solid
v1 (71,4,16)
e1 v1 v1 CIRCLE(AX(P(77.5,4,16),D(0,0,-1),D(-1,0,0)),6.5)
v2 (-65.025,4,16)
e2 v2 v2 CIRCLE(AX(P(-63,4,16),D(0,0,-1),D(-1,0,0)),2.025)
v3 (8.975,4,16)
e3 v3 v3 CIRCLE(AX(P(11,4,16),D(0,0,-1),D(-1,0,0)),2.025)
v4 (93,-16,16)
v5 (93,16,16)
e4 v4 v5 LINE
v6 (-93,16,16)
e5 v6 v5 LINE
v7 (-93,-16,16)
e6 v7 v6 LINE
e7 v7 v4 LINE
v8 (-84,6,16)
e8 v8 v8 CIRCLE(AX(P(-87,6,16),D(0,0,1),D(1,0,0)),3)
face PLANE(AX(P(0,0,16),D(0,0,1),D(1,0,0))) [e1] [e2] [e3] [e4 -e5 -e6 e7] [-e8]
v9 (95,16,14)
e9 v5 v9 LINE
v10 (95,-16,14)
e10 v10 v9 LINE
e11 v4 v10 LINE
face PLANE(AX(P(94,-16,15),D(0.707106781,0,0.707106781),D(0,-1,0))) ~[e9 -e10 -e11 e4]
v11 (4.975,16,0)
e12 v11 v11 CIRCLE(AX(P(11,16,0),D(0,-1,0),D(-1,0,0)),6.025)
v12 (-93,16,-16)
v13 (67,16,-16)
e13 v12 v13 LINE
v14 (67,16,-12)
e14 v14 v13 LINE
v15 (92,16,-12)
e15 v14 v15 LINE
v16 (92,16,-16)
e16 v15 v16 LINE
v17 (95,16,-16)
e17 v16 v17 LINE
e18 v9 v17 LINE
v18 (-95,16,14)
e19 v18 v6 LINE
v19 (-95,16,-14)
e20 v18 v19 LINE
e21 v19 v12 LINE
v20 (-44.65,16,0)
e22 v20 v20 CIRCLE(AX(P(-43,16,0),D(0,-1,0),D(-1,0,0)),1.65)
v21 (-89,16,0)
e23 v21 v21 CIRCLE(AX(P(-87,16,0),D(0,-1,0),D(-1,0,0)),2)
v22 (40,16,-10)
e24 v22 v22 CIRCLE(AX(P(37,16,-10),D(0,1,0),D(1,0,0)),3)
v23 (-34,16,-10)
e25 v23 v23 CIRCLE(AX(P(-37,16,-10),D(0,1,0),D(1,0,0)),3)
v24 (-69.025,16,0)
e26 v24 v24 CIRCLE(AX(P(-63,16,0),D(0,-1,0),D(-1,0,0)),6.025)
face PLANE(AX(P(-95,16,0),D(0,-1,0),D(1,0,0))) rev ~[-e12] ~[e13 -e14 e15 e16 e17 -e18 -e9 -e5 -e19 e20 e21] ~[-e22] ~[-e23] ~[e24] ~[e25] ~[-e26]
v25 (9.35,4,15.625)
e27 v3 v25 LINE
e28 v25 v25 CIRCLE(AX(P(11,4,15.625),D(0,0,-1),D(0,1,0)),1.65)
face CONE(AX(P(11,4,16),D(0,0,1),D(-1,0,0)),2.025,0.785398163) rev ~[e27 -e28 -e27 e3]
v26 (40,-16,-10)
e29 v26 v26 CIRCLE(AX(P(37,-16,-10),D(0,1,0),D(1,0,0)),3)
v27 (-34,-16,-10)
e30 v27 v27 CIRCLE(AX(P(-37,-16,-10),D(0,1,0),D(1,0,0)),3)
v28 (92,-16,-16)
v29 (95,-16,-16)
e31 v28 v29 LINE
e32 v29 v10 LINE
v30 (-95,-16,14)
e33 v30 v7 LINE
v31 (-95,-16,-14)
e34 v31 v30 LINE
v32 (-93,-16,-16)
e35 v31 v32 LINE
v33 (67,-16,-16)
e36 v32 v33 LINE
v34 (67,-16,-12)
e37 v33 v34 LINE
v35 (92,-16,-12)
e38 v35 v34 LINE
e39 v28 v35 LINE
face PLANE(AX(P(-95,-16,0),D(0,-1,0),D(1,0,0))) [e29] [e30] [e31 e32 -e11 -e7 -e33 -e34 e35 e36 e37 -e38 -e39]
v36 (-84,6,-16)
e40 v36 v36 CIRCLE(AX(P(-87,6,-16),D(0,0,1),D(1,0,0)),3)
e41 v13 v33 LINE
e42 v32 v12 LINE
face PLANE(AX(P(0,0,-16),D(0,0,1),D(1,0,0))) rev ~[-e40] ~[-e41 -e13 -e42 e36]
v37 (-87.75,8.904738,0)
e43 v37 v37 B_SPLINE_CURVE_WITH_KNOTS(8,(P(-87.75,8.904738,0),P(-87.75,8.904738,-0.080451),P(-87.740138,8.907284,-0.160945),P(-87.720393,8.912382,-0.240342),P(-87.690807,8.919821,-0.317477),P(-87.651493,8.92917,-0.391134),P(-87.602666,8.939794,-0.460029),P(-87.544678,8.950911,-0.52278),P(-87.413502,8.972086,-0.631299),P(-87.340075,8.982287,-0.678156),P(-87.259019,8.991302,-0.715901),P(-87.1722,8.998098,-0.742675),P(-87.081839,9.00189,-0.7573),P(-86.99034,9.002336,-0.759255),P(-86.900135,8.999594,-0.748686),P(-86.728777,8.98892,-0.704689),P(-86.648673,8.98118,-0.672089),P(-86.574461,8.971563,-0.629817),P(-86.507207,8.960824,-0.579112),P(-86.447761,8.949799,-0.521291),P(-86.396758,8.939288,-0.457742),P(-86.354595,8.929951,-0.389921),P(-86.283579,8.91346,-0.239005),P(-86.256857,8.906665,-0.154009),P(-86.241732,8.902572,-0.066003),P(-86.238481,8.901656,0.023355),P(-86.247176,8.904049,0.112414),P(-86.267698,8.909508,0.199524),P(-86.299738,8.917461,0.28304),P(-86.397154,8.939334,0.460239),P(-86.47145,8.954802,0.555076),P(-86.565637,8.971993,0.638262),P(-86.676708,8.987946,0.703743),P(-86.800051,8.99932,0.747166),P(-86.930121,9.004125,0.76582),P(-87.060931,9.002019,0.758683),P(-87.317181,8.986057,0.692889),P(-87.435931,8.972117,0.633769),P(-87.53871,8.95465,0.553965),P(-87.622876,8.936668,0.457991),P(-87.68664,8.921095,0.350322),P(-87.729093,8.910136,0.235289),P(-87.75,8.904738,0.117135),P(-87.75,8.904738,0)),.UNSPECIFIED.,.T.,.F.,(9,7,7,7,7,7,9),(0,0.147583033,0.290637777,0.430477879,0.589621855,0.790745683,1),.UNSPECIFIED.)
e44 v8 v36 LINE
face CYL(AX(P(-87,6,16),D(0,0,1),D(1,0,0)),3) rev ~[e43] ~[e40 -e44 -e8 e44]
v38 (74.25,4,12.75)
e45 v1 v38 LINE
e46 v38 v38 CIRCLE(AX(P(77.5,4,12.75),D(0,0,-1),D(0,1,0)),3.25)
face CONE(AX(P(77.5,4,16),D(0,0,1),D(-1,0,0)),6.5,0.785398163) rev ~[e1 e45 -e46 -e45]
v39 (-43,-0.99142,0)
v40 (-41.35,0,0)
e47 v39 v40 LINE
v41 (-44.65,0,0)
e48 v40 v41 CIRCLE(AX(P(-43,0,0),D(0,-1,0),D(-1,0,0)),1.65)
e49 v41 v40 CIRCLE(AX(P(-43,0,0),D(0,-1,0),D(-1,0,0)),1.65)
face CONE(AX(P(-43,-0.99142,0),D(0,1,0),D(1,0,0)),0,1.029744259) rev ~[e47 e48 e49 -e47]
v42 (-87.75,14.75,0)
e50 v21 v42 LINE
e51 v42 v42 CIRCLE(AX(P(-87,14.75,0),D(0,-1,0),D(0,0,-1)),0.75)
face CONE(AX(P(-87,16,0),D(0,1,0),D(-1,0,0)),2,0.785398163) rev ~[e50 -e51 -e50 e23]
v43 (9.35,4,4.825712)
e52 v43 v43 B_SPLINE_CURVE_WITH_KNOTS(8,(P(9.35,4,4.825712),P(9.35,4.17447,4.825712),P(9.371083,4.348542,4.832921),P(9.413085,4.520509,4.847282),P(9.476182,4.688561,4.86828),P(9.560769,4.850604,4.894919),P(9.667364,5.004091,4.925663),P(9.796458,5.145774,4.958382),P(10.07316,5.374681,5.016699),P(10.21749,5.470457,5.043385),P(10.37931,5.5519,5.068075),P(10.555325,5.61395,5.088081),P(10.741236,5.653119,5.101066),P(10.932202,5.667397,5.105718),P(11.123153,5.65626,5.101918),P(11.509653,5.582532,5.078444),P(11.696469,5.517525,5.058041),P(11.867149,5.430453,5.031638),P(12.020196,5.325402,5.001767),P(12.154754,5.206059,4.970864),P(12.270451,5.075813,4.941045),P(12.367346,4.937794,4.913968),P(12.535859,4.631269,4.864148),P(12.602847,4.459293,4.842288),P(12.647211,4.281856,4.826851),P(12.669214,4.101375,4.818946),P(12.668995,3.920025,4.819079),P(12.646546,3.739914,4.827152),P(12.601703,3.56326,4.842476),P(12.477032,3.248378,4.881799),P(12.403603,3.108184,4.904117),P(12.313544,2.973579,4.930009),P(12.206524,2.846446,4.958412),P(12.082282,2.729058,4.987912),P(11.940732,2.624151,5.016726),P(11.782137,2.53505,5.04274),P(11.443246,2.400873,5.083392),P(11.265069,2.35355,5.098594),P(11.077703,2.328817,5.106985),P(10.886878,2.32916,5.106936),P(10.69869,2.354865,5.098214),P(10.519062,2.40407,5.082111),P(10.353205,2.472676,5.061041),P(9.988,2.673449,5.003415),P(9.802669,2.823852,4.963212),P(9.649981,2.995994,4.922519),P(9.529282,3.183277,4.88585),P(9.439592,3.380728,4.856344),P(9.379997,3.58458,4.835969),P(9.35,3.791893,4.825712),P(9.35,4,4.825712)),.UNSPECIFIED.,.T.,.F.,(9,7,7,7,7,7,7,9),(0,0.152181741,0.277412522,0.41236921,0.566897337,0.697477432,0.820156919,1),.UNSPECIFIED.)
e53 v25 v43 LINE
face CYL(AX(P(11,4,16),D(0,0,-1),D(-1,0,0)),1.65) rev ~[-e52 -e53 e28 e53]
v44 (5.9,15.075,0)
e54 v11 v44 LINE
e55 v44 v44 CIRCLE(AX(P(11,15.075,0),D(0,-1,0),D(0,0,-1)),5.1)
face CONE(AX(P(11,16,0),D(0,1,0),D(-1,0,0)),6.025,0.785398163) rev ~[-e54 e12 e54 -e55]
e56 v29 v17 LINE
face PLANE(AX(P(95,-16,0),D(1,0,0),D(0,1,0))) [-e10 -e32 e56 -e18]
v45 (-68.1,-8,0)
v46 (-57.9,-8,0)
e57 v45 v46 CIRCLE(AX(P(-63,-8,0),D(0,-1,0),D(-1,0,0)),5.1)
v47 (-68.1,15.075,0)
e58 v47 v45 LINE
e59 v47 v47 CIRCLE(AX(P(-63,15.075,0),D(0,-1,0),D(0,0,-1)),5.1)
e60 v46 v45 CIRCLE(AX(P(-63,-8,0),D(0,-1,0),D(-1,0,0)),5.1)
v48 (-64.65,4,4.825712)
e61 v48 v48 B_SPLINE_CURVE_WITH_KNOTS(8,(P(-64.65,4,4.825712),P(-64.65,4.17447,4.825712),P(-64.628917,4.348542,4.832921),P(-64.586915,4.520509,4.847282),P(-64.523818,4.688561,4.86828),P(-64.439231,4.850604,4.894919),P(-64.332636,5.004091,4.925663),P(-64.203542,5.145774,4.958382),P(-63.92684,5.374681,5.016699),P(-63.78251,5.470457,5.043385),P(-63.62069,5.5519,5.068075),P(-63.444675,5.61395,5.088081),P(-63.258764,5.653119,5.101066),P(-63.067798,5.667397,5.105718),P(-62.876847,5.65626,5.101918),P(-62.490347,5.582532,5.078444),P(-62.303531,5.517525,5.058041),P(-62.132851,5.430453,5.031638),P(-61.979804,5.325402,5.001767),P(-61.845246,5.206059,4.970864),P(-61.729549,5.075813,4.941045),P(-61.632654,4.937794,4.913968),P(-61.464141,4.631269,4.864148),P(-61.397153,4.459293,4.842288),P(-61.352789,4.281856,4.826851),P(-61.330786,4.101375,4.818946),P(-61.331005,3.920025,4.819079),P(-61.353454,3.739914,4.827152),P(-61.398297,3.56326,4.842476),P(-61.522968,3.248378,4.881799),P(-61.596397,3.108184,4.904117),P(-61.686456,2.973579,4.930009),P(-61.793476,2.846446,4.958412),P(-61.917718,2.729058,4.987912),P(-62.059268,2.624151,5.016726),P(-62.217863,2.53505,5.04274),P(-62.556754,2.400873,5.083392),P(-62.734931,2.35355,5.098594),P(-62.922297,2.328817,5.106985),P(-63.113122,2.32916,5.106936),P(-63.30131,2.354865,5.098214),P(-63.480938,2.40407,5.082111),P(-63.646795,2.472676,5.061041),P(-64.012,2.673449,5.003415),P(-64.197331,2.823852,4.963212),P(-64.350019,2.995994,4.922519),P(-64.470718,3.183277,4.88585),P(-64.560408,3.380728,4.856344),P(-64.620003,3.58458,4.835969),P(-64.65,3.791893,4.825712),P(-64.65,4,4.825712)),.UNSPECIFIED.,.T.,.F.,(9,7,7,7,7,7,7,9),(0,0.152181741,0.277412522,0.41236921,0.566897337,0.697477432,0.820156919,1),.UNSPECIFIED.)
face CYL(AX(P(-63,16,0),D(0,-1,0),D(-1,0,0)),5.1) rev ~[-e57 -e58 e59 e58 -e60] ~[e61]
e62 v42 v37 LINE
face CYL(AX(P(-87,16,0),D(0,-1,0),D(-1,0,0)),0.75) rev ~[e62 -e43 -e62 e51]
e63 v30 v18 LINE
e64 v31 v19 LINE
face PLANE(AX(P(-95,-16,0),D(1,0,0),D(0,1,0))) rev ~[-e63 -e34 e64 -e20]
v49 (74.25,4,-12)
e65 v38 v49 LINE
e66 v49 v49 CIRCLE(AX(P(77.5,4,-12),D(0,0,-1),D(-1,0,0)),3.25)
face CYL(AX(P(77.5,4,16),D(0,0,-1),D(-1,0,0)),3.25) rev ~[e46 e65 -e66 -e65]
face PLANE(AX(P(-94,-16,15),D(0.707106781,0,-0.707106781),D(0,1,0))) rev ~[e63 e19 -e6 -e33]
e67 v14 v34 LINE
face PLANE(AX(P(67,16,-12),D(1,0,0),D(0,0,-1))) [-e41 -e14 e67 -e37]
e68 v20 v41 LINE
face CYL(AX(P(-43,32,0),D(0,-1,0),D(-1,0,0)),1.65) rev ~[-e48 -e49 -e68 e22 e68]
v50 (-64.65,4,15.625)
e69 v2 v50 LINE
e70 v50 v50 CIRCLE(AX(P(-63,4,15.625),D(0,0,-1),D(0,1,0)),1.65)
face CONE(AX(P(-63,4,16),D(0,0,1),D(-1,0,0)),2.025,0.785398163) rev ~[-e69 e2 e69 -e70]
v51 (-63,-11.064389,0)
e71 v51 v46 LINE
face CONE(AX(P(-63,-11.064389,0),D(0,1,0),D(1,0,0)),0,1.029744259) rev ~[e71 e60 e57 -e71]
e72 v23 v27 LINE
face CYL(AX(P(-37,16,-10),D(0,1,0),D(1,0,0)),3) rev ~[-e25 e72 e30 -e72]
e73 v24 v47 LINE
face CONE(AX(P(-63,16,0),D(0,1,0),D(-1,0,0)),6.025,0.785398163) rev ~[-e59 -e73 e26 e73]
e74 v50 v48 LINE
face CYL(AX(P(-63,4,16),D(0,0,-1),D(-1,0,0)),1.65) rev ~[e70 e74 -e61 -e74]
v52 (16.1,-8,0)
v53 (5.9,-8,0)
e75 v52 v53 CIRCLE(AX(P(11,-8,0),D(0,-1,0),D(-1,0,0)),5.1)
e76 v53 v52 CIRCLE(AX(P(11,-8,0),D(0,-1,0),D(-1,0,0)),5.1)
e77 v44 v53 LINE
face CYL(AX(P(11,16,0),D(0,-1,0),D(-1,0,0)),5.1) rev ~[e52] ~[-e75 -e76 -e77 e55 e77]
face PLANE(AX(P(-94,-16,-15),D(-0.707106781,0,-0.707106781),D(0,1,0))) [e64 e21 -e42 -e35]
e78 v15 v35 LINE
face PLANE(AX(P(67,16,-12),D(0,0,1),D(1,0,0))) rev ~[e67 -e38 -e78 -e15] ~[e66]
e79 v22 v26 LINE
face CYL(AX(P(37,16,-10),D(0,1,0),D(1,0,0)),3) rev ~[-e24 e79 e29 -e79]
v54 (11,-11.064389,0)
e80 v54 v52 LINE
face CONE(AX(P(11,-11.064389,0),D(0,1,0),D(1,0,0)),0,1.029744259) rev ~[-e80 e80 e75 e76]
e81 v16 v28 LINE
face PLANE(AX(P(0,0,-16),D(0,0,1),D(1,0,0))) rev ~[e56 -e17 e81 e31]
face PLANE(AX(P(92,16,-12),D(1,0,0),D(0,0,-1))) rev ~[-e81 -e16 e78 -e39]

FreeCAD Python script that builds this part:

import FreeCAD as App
import Part
import Sketcher

V = App.Vector


def edges_at(feature, points):
    """Names of the edges that pass closest to the given points."""
    edges = feature.Shape.Edges
    near = lambda p: min(range(len(edges)), key=lambda i: edges[i].distToShape(Part.Vertex(*p))[0])
    return sorted({f"Edge{near(p) + 1}" for p in points})


def add_polygon(sketch, points):
    """Adds a closed chain of lines whose ends are joined by coincident constraints."""
    first, n = sketch.GeometryCount, len(points)
    for a, b in zip(points, points[1:] + points[:1]):
        sketch.addGeometry(Part.LineSegment(App.Vector(*a, 0), App.Vector(*b, 0)), False)
    for i in range(n):
        sketch.addConstraint(Sketcher.Constraint("Coincident", first + i, 2, first + (i + 1) % n, 1))

doc = App.newDocument("Part")
params = doc.addObject("Spreadsheet::Sheet", "Params")
for row, (alias, value) in enumerate([
    ("sketch1_width", "190 mm"),
    ("sketch1_height", "32 mm"),
    ("pad1_length", "32 mm"),
    ("chamfer_size", "2 mm"),
    ("sketch2_width", "25 mm"),
    ("sketch2_height", "4 mm"),
    ("sketch3_diameter", "10.2 mm"),
    ("hole_diameter", "10.2 mm"),
    ("hole_depth", "24 mm"),
    ("hole_csink_diameter", "12.05 mm"),
    ("sketch4_diameter", "3.3 mm"),
    ("hole2_diameter", "3.3 mm"),
    ("hole2_depth", "11.5 mm"),
    ("hole2_csink_diameter", "4.05 mm"),
    ("sketch5_diameter", "6.5 mm"),
    ("hole3_diameter", "6.5 mm"),
    ("hole3_csink_diameter", "13 mm"),
    ("sketch6_diameter", "6 mm"),
    ("sketch7_diameter", "1.5 mm"),
    ("hole4_diameter", "1.5 mm"),
    ("hole4_depth", "11.5 mm"),
    ("hole4_csink_diameter", "4 mm"),
    ("sketch8_diameter", "3.3 mm"),
    ("hole5_diameter", "3.3 mm"),
    ("hole5_depth", "16 mm"),
    ("sketch9_diameter", "6 mm"),
], start=1):
    params.set(f"A{row}", alias)
    params.set(f"B{row}", "=" + value)
    params.setAlias(f"B{row}", alias)

body = doc.addObject("PartDesign::Body", "Body")

sketch1 = body.newObject("Sketcher::SketchObject", "Sketch")
sketch1.AttachmentSupport = (doc.getObject("XY_Plane"), [""])
sketch1.MapMode = "FlatFace"
add_polygon(sketch1, [(-95, 16), (-95, -16), (95, -16), (95, 16)])
sketch1.addConstraint(Sketcher.Constraint("Vertical", 0))
sketch1.addConstraint(Sketcher.Constraint("Horizontal", 1))
sketch1.addConstraint(Sketcher.Constraint("Vertical", 2))
sketch1.addConstraint(Sketcher.Constraint("Horizontal", 3))
sketch1.addConstraint(Sketcher.Constraint("Symmetric", 0, 2, 2, 2, -1, 1))
sketch1.addConstraint(Sketcher.Constraint("DistanceX", 1, 1, 1, 2, 190.0))
sketch1.addConstraint(Sketcher.Constraint("DistanceY", 0, 2, 0, 1, 32.0))
sketch1.setExpression("Constraints[9]", "Params.sketch1_width")
sketch1.setExpression("Constraints[10]", "Params.sketch1_height")
pad1 = body.newObject("PartDesign::Pad", "Pad")
pad1.Profile = sketch1
pad1.setExpression("Length", "Params.pad1_length")
pad1.Midplane = True
doc.recompute()

chamfer = body.newObject("PartDesign::Chamfer", "Chamfer")
chamfer.Base = (pad1, edges_at(pad1, [(-95, 0, 16), (95, 0, 16), (-95, 0, -16)]))
chamfer.setExpression("Size", "Params.chamfer_size")

sketch2 = body.newObject("Sketcher::SketchObject", "Sketch001")
sketch2.AttachmentSupport = (doc.getObject("XZ_Plane"), [""])
sketch2.MapMode = "FlatFace"
sketch2.AttachmentOffset = App.Placement(V(0, 0, -16), App.Rotation())
add_polygon(sketch2, [(67, -16), (67, -12), (92, -12), (92, -16)])
sketch2.addConstraint(Sketcher.Constraint("Vertical", 0))
sketch2.addConstraint(Sketcher.Constraint("Horizontal", 1))
sketch2.addConstraint(Sketcher.Constraint("Vertical", 2))
sketch2.addConstraint(Sketcher.Constraint("Horizontal", 3))
sketch2.addConstraint(Sketcher.Constraint("DistanceX", 1, 1, 1, 2, 25.0))
sketch2.addConstraint(Sketcher.Constraint("DistanceY", 0, 1, 0, 2, 4.0))
sketch2.addConstraint(Sketcher.Constraint("DistanceX", -1, 1, 0, 2, 67.0))
sketch2.addConstraint(Sketcher.Constraint("DistanceY", 0, 2, -1, 1, 12.0))
sketch2.setExpression("Constraints[8]", "Params.sketch2_width")
sketch2.setExpression("Constraints[9]", "Params.sketch2_height")
pocket1 = body.newObject("PartDesign::Pocket", "Pocket")
pocket1.Profile = sketch2
pocket1.Type = "ThroughAll"
pocket1.Reversed = True

sketch3 = body.newObject("Sketcher::SketchObject", "Sketch002")
sketch3.AttachmentSupport = (doc.getObject("XZ_Plane"), [""])
sketch3.MapMode = "FlatFace"
sketch3.AttachmentOffset = App.Placement(V(0, 0, -16), App.Rotation())
sketch3.addGeometry(Part.Circle(V(-63, 0, 0), V(0, 0, 1), 5), False)
sketch3.addGeometry(Part.Circle(V(11, 0, 0), V(0, 0, 1), 5), False)
sketch3.addConstraint(Sketcher.Constraint("Equal", 0, 1))
sketch3.addConstraint(Sketcher.Constraint("PointOnObject", 0, 3, -1))
sketch3.addConstraint(Sketcher.Constraint("PointOnObject", 1, 3, -1))
sketch3.addConstraint(Sketcher.Constraint("Diameter", 0, 10.2))
sketch3.addConstraint(Sketcher.Constraint("DistanceX", 0, 3, -1, 1, 63.0))
sketch3.addConstraint(Sketcher.Constraint("DistanceX", -1, 1, 1, 3, 11.0))
sketch3.setExpression("Constraints[3]", "Params.sketch3_diameter")
doc.recompute()
hole = body.newObject("PartDesign::Hole", "Hole")
hole.Profile = sketch3
hole.ThreadType = "None"
hole.setExpression("Diameter", "Params.hole_diameter")
hole.DepthType = "Dimension"
hole.setExpression("Depth", "Params.hole_depth")
hole.DrillPoint = "Angled"
hole.DrillPointAngle = 118
hole.HoleCutType = "Countersink"
hole.setExpression("HoleCutDiameter", "Params.hole_csink_diameter")
hole.HoleCutCountersinkAngle = 90
hole.Reversed = True

sketch4 = body.newObject("Sketcher::SketchObject", "Sketch003")
sketch4.AttachmentSupport = (doc.getObject("XY_Plane"), [""])
sketch4.MapMode = "FlatFace"
sketch4.AttachmentOffset = App.Placement(V(0, 0, 16), App.Rotation())
sketch4.addGeometry(Part.Circle(V(-63, 4, 0), V(0, 0, 1), 1.6), False)
sketch4.addGeometry(Part.Circle(V(11, 4, 0), V(0, 0, 1), 1.6), False)
sketch4.addConstraint(Sketcher.Constraint("Equal", 0, 1))
sketch4.addConstraint(Sketcher.Constraint("Horizontal", 0, 3, 1, 3))
sketch4.addConstraint(Sketcher.Constraint("Diameter", 0, 3.3))
sketch4.addConstraint(Sketcher.Constraint("DistanceX", 0, 3, -1, 1, 63.0))
sketch4.addConstraint(Sketcher.Constraint("DistanceY", -1, 1, 0, 3, 4.0))
sketch4.addConstraint(Sketcher.Constraint("DistanceX", -1, 1, 1, 3, 11.0))
sketch4.setExpression("Constraints[2]", "Params.sketch4_diameter")
doc.recompute()
hole2 = body.newObject("PartDesign::Hole", "Hole001")
hole2.Profile = sketch4
hole2.ThreadType = "None"
hole2.setExpression("Diameter", "Params.hole2_diameter")
hole2.DepthType = "Dimension"
hole2.setExpression("Depth", "Params.hole2_depth")
hole2.DrillPoint = "Angled"
hole2.DrillPointAngle = 118
hole2.HoleCutType = "Countersink"
hole2.setExpression("HoleCutDiameter", "Params.hole2_csink_diameter")
hole2.HoleCutCountersinkAngle = 90

sketch5 = body.newObject("Sketcher::SketchObject", "Sketch004")
sketch5.AttachmentSupport = (doc.getObject("XY_Plane"), [""])
sketch5.MapMode = "FlatFace"
sketch5.AttachmentOffset = App.Placement(V(0, 0, 16), App.Rotation())
sketch5.addGeometry(Part.Circle(V(77.5, 4, 0), V(0, 0, 1), 3.2), False)
sketch5.addConstraint(Sketcher.Constraint("Diameter", 0, 6.5))
sketch5.addConstraint(Sketcher.Constraint("DistanceY", -1, 1, 0, 3, 4.0))
sketch5.addConstraint(Sketcher.Constraint("DistanceX", -1, 1, 0, 3, 77.5))
sketch5.setExpression("Constraints[0]", "Params.sketch5_diameter")
doc.recompute()
hole3 = body.newObject("PartDesign::Hole", "Hole002")
hole3.Profile = sketch5
hole3.ThreadType = "None"
hole3.setExpression("Diameter", "Params.hole3_diameter")
hole3.DepthType = "ThroughAll"
hole3.HoleCutType = "Countersink"
hole3.setExpression("HoleCutDiameter", "Params.hole3_csink_diameter")
hole3.HoleCutCountersinkAngle = 90

sketch6 = body.newObject("Sketcher::SketchObject", "Sketch005")
sketch6.AttachmentSupport = (doc.getObject("XY_Plane"), [""])
sketch6.MapMode = "FlatFace"
sketch6.AttachmentOffset = App.Placement(V(0, 0, 16), App.Rotation())
sketch6.addGeometry(Part.Circle(V(-87, 6, 0), V(0, 0, 1), 3), False)
sketch6.addConstraint(Sketcher.Constraint("Diameter", 0, 6.0))
sketch6.addConstraint(Sketcher.Constraint("DistanceX", 0, 3, -1, 1, 87.0))
sketch6.addConstraint(Sketcher.Constraint("DistanceY", -1, 1, 0, 3, 6.0))
sketch6.setExpression("Constraints[0]", "Params.sketch6_diameter")
pocket2 = body.newObject("PartDesign::Pocket", "Pocket001")
pocket2.Profile = sketch6
pocket2.Type = "ThroughAll"

sketch7 = body.newObject("Sketcher::SketchObject", "Sketch006")
sketch7.AttachmentSupport = (doc.getObject("XZ_Plane"), [""])
sketch7.MapMode = "FlatFace"
sketch7.AttachmentOffset = App.Placement(V(0, 0, -16), App.Rotation())
sketch7.addGeometry(Part.Circle(V(-87, 0, 0), V(0, 0, 1), 0.8), False)
sketch7.addConstraint(Sketcher.Constraint("PointOnObject", 0, 3, -1))
sketch7.addConstraint(Sketcher.Constraint("Diameter", 0, 1.5))
sketch7.addConstraint(Sketcher.Constraint("DistanceX", 0, 3, -1, 1, 87.0))
sketch7.setExpression("Constraints[1]", "Params.sketch7_diameter")
doc.recompute()
hole4 = body.newObject("PartDesign::Hole", "Hole003")
hole4.Profile = sketch7
hole4.ThreadType = "None"
hole4.setExpression("Diameter", "Params.hole4_diameter")
hole4.DepthType = "Dimension"
hole4.setExpression("Depth", "Params.hole4_depth")
hole4.DrillPoint = "Angled"
hole4.DrillPointAngle = 118
hole4.HoleCutType = "Countersink"
hole4.setExpression("HoleCutDiameter", "Params.hole4_csink_diameter")
hole4.HoleCutCountersinkAngle = 90
hole4.Reversed = True

sketch8 = body.newObject("Sketcher::SketchObject", "Sketch007")
sketch8.AttachmentSupport = (doc.getObject("XZ_Plane"), [""])
sketch8.MapMode = "FlatFace"
sketch8.AttachmentOffset = App.Placement(V(0, 0, -16), App.Rotation())
sketch8.addGeometry(Part.Circle(V(-43, 0, 0), V(0, 0, 1), 1.6), False)
sketch8.addConstraint(Sketcher.Constraint("PointOnObject", 0, 3, -1))
sketch8.addConstraint(Sketcher.Constraint("Diameter", 0, 3.3))
sketch8.addConstraint(Sketcher.Constraint("DistanceX", 0, 3, -1, 1, 43.0))
sketch8.setExpression("Constraints[1]", "Params.sketch8_diameter")
doc.recompute()
hole5 = body.newObject("PartDesign::Hole", "Hole004")
hole5.Profile = sketch8
hole5.ThreadType = "None"
hole5.setExpression("Diameter", "Params.hole5_diameter")
hole5.DepthType = "Dimension"
hole5.setExpression("Depth", "Params.hole5_depth")
hole5.DrillPoint = "Angled"
hole5.DrillPointAngle = 118
hole5.Reversed = True

sketch9 = body.newObject("Sketcher::SketchObject", "Sketch008")
sketch9.AttachmentSupport = (doc.getObject("XZ_Plane"), [""])
sketch9.MapMode = "FlatFace"
sketch9.AttachmentOffset = App.Placement(V(0, 0, -16), App.Rotation())
sketch9.addGeometry(Part.Circle(V(-37, -10, 0), V(0, 0, 1), 3), False)
sketch9.addGeometry(Part.Circle(V(37, -10, 0), V(0, 0, 1), 3), False)
sketch9.addConstraint(Sketcher.Constraint("Equal", 0, 1))
sketch9.addConstraint(Sketcher.Constraint("Symmetric", 0, 3, 1, 3, -2))
sketch9.addConstraint(Sketcher.Constraint("Diameter", 0, 6.0))
sketch9.addConstraint(Sketcher.Constraint("DistanceX", 0, 3, -1, 1, 37.0))
sketch9.addConstraint(Sketcher.Constraint("DistanceY", 0, 3, -1, 1, 10.0))
sketch9.setExpression("Constraints[2]", "Params.sketch9_diameter")
pocket3 = body.newObject("PartDesign::Pocket", "Pocket002")
pocket3.Profile = sketch9
pocket3.Type = "ThroughAll"
pocket3.Reversed = True

doc.recompute()
